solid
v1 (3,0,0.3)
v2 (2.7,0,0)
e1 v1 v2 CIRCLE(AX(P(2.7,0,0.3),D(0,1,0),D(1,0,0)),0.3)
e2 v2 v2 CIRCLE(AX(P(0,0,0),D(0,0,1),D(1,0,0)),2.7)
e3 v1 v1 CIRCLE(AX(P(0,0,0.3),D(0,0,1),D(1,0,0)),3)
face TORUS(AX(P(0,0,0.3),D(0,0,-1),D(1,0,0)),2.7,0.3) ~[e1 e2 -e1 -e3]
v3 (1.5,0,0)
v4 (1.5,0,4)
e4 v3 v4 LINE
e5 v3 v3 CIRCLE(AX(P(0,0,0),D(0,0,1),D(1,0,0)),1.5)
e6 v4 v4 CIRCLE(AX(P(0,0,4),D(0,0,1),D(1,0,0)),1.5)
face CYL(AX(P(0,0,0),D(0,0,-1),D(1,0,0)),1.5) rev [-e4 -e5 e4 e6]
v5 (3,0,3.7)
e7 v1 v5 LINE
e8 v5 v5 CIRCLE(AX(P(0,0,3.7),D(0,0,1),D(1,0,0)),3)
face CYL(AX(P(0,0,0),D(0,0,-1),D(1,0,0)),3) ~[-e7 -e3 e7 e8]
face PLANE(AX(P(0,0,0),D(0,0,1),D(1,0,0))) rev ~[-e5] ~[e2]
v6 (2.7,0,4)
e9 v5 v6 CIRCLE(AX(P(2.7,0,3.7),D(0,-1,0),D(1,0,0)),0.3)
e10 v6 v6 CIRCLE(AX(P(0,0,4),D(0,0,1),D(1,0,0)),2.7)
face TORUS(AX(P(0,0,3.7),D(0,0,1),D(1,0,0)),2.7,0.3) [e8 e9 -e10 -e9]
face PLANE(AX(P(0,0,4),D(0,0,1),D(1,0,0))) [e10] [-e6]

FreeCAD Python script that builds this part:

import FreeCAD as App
import Part
import Sketcher
Q = App.Units.Quantity


def edges_at(feature, points):
    """Names of the edges that pass closest to the given points."""
    edges = feature.Shape.Edges
    near = lambda p: min(range(len(edges)), key=lambda i: edges[i].distToShape(Part.Vertex(*p))[0])
    return sorted({f"Edge{near(p) + 1}" for p in points})

doc = App.newDocument("Part")
body = doc.addObject("PartDesign::Body", "Body")

# Sketch on XY plane
sketch1 = doc.addObject("Sketcher::SketchObject", "Sketch")
body.addObject(sketch1)
sketch1.AttachmentSupport = (doc.XY_Plane, [""])
sketch1.MapMode = "FlatFace"
sketch1.addGeometry(Part.Circle(App.Vector(0, 0, 0), App.Vector(0, 0, 1), 3), False)
sketch1.addGeometry(Part.Circle(App.Vector(0, 0, 0), App.Vector(0, 0, 1), 1.5), False)
sketch1.addConstraint(Sketcher.Constraint("Coincident", 0, 3, -1, 1))
sketch1.addConstraint(Sketcher.Constraint("Coincident", 1, 3, -1, 1))
sketch1.addConstraint(Sketcher.Constraint("Diameter", 0, Q("6 mm")))
sketch1.addConstraint(Sketcher.Constraint("Diameter", 1, Q("3 mm")))
pad1 = doc.addObject("PartDesign::Pad", "Pad")
body.addObject(pad1)
pad1.Profile = sketch1
pad1.Length = 4
doc.recompute()

fillet = doc.addObject("PartDesign::Fillet", "Fillet")
body.addObject(fillet)
fillet.Base = (pad1, edges_at(pad1, [(-3, 0, 4), (-3, 0, 0)]))
fillet.Radius = 0.3

doc.recompute()
